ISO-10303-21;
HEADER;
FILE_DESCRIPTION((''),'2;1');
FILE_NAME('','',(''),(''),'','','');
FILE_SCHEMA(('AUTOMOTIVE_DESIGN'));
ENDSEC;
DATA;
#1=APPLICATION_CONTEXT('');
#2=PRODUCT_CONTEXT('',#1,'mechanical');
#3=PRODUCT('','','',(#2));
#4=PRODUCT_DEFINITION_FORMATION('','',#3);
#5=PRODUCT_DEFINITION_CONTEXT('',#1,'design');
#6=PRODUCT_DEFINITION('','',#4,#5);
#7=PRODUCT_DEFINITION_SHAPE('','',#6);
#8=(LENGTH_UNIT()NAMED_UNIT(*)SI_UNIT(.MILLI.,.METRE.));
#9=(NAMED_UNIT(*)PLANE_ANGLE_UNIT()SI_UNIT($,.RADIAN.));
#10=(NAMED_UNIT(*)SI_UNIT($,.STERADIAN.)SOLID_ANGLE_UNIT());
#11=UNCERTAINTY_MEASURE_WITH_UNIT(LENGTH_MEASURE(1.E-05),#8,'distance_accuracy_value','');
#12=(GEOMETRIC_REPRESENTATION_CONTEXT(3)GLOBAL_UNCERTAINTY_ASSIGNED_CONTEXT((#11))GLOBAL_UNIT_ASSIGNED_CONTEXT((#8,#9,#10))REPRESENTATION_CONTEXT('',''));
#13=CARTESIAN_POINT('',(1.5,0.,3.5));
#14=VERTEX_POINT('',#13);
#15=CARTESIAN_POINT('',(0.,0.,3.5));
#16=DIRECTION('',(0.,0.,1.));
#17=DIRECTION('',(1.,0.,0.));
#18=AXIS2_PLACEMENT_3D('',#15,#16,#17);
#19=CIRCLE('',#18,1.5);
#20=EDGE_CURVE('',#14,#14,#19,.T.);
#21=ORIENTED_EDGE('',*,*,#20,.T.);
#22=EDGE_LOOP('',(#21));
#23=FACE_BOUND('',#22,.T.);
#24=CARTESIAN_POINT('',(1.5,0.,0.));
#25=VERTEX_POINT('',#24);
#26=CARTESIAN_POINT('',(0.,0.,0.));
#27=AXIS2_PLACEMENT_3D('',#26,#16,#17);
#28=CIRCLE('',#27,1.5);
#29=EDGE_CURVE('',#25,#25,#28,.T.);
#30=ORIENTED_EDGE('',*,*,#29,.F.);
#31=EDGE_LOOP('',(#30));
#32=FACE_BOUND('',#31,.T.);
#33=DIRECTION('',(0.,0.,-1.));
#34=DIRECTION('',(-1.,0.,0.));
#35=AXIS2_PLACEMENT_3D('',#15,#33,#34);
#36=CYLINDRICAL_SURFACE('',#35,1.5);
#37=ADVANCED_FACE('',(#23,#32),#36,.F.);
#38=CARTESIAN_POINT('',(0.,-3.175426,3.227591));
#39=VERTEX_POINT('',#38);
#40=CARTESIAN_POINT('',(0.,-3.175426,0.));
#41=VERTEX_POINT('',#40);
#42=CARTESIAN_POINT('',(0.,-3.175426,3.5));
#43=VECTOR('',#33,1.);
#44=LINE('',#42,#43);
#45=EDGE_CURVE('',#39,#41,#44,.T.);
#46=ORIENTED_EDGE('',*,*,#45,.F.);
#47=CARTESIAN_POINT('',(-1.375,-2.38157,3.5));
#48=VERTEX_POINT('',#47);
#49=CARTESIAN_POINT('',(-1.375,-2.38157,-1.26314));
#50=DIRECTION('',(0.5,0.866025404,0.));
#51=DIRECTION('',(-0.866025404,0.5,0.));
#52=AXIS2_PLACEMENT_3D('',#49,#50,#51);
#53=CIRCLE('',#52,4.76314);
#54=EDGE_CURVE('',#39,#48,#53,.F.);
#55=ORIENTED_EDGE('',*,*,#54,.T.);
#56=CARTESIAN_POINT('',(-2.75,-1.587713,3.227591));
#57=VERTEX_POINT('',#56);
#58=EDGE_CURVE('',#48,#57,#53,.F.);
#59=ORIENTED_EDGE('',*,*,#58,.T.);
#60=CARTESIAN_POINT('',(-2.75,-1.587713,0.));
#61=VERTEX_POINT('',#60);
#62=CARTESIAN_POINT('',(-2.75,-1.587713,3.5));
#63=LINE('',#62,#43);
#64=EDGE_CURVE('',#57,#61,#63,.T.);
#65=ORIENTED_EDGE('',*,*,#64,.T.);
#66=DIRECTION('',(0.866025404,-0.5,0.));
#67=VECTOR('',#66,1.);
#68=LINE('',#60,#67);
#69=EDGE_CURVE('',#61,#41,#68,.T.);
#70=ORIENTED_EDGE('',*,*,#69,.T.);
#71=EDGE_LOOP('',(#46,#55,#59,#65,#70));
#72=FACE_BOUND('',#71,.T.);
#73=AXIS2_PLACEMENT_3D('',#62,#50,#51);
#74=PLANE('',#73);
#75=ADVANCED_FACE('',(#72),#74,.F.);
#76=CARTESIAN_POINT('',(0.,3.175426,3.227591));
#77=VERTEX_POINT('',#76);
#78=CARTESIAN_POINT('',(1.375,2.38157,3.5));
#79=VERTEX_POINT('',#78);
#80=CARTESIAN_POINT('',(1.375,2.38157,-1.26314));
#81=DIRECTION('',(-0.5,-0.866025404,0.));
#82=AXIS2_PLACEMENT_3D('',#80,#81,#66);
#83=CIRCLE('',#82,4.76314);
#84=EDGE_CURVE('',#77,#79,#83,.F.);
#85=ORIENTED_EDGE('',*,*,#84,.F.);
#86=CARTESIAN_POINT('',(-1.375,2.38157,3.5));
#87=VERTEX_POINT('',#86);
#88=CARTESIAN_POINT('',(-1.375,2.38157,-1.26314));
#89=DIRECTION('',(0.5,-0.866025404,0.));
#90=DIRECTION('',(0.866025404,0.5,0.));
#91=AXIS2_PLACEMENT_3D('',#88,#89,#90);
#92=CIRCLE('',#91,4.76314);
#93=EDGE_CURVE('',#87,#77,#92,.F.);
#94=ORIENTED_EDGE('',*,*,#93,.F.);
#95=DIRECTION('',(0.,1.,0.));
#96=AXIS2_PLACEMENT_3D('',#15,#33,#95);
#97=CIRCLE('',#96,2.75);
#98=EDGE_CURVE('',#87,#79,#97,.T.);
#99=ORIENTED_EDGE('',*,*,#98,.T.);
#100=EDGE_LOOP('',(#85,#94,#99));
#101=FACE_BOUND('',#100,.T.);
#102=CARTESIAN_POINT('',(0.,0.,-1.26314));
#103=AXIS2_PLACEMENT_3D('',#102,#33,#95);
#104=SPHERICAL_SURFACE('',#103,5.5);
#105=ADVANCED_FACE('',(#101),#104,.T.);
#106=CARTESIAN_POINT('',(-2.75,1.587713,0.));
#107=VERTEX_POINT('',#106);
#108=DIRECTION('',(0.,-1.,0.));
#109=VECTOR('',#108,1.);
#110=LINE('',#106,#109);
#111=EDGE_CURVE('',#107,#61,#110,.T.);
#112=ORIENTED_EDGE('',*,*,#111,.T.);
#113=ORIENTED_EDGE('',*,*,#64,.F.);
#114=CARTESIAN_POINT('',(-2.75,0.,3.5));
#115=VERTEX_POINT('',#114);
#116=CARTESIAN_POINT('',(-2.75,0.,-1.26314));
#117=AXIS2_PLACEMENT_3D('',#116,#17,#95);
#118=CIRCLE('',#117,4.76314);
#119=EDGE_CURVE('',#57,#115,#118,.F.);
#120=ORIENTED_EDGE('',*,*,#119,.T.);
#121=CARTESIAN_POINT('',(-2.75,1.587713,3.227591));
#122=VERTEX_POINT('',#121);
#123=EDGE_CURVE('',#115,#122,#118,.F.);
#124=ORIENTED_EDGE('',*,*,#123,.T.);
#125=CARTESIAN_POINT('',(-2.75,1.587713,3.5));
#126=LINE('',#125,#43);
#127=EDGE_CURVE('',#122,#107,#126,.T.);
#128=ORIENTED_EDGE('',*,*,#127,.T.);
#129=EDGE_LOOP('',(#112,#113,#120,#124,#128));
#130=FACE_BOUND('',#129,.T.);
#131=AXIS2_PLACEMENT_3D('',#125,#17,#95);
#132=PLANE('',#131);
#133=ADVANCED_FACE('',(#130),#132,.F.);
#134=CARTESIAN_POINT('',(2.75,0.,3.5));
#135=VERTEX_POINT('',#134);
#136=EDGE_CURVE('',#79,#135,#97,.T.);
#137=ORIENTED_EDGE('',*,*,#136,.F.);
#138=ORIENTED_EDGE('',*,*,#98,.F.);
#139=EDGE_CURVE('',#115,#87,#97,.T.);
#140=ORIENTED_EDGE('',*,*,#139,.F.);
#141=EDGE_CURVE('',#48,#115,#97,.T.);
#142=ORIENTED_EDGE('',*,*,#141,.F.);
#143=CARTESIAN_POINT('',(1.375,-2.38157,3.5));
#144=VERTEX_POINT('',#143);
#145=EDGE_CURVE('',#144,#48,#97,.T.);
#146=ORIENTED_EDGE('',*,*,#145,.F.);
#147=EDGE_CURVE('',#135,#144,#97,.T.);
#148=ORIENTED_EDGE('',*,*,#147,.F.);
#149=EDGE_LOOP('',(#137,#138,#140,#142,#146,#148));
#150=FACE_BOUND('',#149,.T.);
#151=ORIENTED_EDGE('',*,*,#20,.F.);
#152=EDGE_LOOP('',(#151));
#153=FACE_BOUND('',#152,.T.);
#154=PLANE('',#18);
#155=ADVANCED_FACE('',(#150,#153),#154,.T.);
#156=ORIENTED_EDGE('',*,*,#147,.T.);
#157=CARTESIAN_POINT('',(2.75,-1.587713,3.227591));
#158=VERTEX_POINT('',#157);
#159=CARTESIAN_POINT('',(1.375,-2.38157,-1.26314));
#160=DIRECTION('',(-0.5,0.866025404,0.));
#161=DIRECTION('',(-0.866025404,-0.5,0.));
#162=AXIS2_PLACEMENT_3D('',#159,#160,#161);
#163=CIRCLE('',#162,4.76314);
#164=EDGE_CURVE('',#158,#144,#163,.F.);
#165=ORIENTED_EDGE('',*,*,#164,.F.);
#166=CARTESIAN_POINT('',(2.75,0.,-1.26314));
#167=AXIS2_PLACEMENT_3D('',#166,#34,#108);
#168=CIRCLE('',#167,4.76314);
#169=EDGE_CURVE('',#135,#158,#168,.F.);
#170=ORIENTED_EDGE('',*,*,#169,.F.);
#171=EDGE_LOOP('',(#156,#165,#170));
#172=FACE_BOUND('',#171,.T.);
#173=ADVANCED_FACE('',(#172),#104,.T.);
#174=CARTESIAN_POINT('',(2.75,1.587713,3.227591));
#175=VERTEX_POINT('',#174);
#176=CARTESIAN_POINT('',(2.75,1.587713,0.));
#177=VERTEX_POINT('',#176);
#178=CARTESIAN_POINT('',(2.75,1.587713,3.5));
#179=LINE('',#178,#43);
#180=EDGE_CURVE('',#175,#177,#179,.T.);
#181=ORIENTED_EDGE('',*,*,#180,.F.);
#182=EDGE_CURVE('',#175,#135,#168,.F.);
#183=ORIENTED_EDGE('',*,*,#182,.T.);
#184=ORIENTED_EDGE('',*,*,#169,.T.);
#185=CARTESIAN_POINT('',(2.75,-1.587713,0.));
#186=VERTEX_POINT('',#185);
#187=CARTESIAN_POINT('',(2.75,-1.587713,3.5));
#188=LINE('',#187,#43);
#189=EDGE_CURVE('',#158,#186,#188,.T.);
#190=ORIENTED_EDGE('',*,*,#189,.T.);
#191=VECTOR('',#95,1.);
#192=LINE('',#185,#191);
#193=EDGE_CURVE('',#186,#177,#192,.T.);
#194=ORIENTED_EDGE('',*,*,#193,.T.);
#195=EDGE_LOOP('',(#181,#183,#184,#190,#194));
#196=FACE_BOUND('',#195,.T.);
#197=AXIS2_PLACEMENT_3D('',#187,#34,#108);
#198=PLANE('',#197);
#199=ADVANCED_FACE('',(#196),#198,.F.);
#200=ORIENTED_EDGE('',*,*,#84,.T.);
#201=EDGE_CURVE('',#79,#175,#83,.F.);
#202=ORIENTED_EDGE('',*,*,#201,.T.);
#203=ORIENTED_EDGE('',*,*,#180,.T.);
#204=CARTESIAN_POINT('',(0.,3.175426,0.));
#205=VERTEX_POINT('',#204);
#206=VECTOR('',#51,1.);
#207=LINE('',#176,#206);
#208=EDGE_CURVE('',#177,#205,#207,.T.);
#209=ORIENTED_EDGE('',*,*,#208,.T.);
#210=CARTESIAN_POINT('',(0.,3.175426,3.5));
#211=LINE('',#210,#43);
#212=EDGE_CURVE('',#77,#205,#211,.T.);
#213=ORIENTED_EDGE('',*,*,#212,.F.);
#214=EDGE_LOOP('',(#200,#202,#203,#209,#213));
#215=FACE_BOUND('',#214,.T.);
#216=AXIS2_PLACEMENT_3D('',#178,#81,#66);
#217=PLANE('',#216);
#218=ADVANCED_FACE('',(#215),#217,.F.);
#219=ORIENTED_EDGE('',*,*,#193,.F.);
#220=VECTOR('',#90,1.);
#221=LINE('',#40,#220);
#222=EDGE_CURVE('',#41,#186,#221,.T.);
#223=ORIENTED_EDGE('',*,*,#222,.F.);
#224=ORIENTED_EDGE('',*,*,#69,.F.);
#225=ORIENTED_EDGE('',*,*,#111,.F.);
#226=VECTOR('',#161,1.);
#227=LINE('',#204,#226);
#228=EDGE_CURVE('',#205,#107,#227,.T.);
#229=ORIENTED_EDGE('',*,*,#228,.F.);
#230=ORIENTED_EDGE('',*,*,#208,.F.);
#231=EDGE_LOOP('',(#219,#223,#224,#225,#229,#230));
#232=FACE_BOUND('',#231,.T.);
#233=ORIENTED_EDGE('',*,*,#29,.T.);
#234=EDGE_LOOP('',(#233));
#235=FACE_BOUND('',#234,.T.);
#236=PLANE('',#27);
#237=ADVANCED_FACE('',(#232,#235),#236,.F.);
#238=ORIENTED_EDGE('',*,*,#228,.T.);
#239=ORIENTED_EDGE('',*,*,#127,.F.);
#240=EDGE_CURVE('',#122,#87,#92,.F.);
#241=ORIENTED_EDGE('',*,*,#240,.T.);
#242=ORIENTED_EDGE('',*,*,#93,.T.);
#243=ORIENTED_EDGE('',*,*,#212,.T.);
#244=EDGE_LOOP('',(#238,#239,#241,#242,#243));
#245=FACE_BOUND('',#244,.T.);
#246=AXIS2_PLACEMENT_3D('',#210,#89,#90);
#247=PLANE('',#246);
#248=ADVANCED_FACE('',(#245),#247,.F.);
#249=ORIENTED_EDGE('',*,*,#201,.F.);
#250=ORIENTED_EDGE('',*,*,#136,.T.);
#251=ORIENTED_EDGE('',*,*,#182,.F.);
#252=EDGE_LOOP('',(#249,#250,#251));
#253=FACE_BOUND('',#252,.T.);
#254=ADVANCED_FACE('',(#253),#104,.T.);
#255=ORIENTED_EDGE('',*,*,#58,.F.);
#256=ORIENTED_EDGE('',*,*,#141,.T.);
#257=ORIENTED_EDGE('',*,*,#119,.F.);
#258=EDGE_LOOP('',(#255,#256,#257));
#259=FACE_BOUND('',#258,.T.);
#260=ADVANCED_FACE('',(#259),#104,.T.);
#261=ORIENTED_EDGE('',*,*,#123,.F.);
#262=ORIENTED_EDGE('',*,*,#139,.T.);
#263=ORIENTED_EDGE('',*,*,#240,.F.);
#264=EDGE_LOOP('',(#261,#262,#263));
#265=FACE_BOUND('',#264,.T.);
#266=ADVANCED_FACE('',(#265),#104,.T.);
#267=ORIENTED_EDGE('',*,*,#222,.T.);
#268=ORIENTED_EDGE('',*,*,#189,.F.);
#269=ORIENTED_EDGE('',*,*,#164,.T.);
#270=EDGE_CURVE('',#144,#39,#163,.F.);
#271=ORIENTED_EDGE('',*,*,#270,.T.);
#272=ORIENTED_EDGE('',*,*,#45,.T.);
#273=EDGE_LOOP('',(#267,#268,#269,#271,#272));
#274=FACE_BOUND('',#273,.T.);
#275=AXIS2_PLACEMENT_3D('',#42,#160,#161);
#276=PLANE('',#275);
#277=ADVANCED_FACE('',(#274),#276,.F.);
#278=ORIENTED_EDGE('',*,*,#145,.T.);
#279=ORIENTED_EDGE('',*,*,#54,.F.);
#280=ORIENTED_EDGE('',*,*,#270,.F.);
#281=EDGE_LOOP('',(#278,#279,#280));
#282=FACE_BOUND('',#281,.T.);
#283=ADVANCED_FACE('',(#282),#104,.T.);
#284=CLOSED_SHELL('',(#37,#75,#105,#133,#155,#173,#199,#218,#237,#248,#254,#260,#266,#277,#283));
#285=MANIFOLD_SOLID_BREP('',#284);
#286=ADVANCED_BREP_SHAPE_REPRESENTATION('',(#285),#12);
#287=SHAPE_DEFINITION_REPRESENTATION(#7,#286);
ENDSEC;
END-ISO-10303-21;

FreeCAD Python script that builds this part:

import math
import FreeCAD as App
import Part
import Sketcher
Q = App.Units.Quantity


def add_polygon(sketch, points):
    """Adds a closed chain of lines whose ends are joined by coincident constraints."""
    first, n = sketch.GeometryCount, len(points)
    for a, b in zip(points, points[1:] + points[:1]):
        sketch.addGeometry(Part.LineSegment(App.Vector(*a, 0), App.Vector(*b, 0)), False)
    for i in range(n):
        sketch.addConstraint(Sketcher.Constraint("Coincident", first + i, 2, first + (i + 1) % n, 1))

doc = App.newDocument("Part")
body = doc.addObject("PartDesign::Body", "Body")

# Sketch on XY plane
sketch1 = doc.addObject("Sketcher::SketchObject", "Sketch")
body.addObject(sketch1)
sketch1.AttachmentSupport = (doc.XY_Plane, [""])
sketch1.MapMode = "FlatFace"
add_polygon(sketch1, [(0, 3.2), (-2.8, 1.6), (-2.8, -1.6), (0, -3.2), (2.8, -1.6), (2.8, 1.6)])  # lines 0-5
sketch1.addGeometry(Part.Circle(App.Vector(0, 0, 0), App.Vector(0, 0, 1), 1.5), False)  # 6
sketch1.addConstraint(Sketcher.Constraint("Vertical", 1))
sketch1.addConstraint(Sketcher.Constraint("Vertical", 4))
sketch1.addConstraint(Sketcher.Constraint("Coincident", 6, 3, -1, 1))
sketch1.addConstraint(Sketcher.Constraint("Symmetric", 0, 2, 3, 2, -1, 1))
sketch1.addConstraint(Sketcher.Constraint("Symmetric", 2, 2, 5, 2, -1, 1))
sketch1.addConstraint(Sketcher.Constraint("PointOnObject", 2, 2, -2))
sketch1.addConstraint(Sketcher.Constraint("Parallel", 2, 5))
sketch1.addConstraint(Sketcher.Constraint("Horizontal", 1, 2, 3, 2))
sketch1.addConstraint(Sketcher.Constraint("Diameter", 6, 3.0))
sketch1.addConstraint(Sketcher.Constraint("Angle", 0, Q("-150 deg")))
sketch1.addConstraint(Sketcher.Constraint("DistanceX", 1, 2, 3, 2, 5.5))
sketch1.addConstraint(Sketcher.Constraint("DistanceY", 1, 2, 1, 1, 3.175426))
pad1 = doc.addObject("PartDesign::Pad", "Pad")
body.addObject(pad1)
pad1.Profile = sketch1
pad1.Length = 3.5

# Sketch on YZ plane
sketch2 = doc.addObject("Sketcher::SketchObject", "Sketch001")
body.addObject(sketch2)
sketch2.AttachmentSupport = (doc.YZ_Plane, [""])
sketch2.MapMode = "FlatFace"
sketch2.addGeometry(Part.LineSegment(App.Vector(3.18, 3.23, 0), App.Vector(3.18, 3.5, 0)), False)
sketch2.addGeometry(Part.LineSegment(App.Vector(3.18, 3.5, 0), App.Vector(2.75, 3.5, 0)), False)
sketch2.addGeometry(Part.ArcOfCircle(Part.Circle(App.Vector(0, -1.26, 0), App.Vector(0, 0, 1), 5.5), math.radians(54.74), math.radians(60)), False)
sketch2.addConstraint(Sketcher.Constraint("Coincident", 0, 2, 1, 1))
sketch2.addConstraint(Sketcher.Constraint("Coincident", 1, 2, 2, 2))
sketch2.addConstraint(Sketcher.Constraint("Coincident", 2, 1, 0, 1))
sketch2.addConstraint(Sketcher.Constraint("Vertical", 0))
sketch2.addConstraint(Sketcher.Constraint("Horizontal", 1))
sketch2.addConstraint(Sketcher.Constraint("PointOnObject", 2, 3, -2))
sketch2.addConstraint(Sketcher.Constraint("Radius", 2, 5.500001))
sketch2.addConstraint(Sketcher.Constraint("DistanceY", -1, 1, 0, 2, 3.5))
sketch2.addConstraint(Sketcher.Constraint("DistanceX", -1, 1, 1, 2, 2.75))
sketch2.addConstraint(Sketcher.Constraint("DistanceY", 0, 1, 0, 2, 0.272409))
groove = doc.addObject("PartDesign::Groove", "Groove")
body.addObject(groove)
groove.Profile = sketch2
groove.ReferenceAxis = (sketch2, ["V_Axis"])
groove.Angle = 360

doc.recompute()
